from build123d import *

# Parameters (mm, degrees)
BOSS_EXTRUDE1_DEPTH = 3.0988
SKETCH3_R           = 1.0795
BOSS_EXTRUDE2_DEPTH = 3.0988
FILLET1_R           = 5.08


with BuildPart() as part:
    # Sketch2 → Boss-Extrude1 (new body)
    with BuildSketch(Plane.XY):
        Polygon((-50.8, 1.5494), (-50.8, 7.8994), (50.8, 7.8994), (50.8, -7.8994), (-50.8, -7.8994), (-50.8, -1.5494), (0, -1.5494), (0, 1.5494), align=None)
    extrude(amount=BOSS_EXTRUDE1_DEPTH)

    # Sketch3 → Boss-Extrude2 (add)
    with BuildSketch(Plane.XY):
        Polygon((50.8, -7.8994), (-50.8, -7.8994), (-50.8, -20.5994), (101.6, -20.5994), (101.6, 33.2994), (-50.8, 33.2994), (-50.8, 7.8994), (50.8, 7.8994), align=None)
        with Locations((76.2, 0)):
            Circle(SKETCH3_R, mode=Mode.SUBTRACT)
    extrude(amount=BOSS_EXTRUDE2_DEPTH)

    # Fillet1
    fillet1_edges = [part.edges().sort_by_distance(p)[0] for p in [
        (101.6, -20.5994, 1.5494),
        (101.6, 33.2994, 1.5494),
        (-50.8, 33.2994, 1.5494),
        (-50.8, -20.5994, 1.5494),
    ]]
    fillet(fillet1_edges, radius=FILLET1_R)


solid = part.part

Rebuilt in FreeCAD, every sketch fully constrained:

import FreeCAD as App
import Part
import Sketcher
Q = App.Units.Quantity


def edges_at(feature, points):
    """Names of the edges that pass closest to the given points."""
    edges = feature.Shape.Edges
    near = lambda p: min(range(len(edges)), key=lambda i: edges[i].distToShape(Part.Vertex(*p))[0])
    return sorted({f"Edge{near(p) + 1}" for p in points})


def add_polygon(sketch, points):
    """Adds a closed chain of lines whose ends are joined by coincident constraints."""
    first, n = sketch.GeometryCount, len(points)
    for a, b in zip(points, points[1:] + points[:1]):
        sketch.addGeometry(Part.LineSegment(App.Vector(*a, 0), App.Vector(*b, 0)), False)
    for i in range(n):
        sketch.addConstraint(Sketcher.Constraint("Coincident", first + i, 2, first + (i + 1) % n, 1))

doc = App.newDocument("Part")
params = doc.addObject("Spreadsheet::Sheet", "Params")
for row, (alias, value) in enumerate([
    ("sketch1_width", "2 in"),
    ("sketch1_height", "0.25 in"),
    ("sketch1_height2", "0.122 in"),
    ("pad1_length", "0.122 in"),
    ("sketch2_width", "4 in"),
    ("sketch2_width2", "6 in"),
    ("sketch2_height", "1 in"),
    ("sketch2_diameter", "0.085 in"),
    ("sketch2_height2", "0.5 in"),
    ("pad2_length", "0.122 in"),
    ("fillet_radius", "0.2 in"),
], start=1):
    params.set(f"A{row}", alias)
    params.set(f"B{row}", "=" + value)
    params.setAlias(f"B{row}", alias)

body = doc.addObject("PartDesign::Body", "Body")

sketch1 = body.newObject("Sketcher::SketchObject", "Sketch")
sketch1.AttachmentSupport = (doc.getObject("XY_Plane"), [""])
sketch1.MapMode = "FlatFace"
add_polygon(sketch1, [(-50.8, 7.8994), (-50.8, 1.5494), (0, 1.5494), (0, -1.5494), (-50.8, -1.5494), (-50.8, -7.8994), (50.8, -7.8994), (50.8, 7.8994)])
sketch1.addConstraint([
    Sketcher.Constraint("Vertical", 0),
    Sketcher.Constraint("Horizontal", 1),
    Sketcher.Constraint("Vertical", 2),
    Sketcher.Constraint("Horizontal", 3),
    Sketcher.Constraint("Vertical", 4),
    Sketcher.Constraint("Horizontal", 5),
    Sketcher.Constraint("Vertical", 6),
    Sketcher.Constraint("Horizontal", 7),
    Sketcher.Constraint("Symmetric", 1, 2, 2, 2, -1, 1),
    Sketcher.Constraint("Symmetric", 4, 2, 6, 2, -1, 1),
    Sketcher.Constraint("Vertical", 0, 2, 3, 2),
    Sketcher.Constraint("DistanceX", 1, 1, 1, 2, Q("2 in")),
    Sketcher.Constraint("DistanceY", 0, 2, 0, 1, Q("0.25 in")),
    Sketcher.Constraint("DistanceY", 2, 2, 2, 1, Q("0.122 in")),
])
sketch1.setExpression("Constraints[19]", "Params.sketch1_width")
sketch1.setExpression("Constraints[20]", "Params.sketch1_height")
sketch1.setExpression("Constraints[21]", "Params.sketch1_height2")
pad1 = body.newObject("PartDesign::Pad", "Pad")
pad1.Profile = sketch1
pad1.setExpression("Length", "Params.pad1_length")

sketch2 = body.newObject("Sketcher::SketchObject", "Sketch001")
sketch2.AttachmentSupport = (doc.getObject("XY_Plane"), [""])
sketch2.MapMode = "FlatFace"
add_polygon(sketch2, [(50.8, -7.8994), (-50.8, -7.8994), (-50.8, -20.5994), (101.6, -20.5994), (101.6, 33.2994), (-50.8, 33.2994), (-50.8, 7.8994), (50.8, 7.8994)])
sketch2.addGeometry(Part.Circle(App.Vector(76.2, 0, 0), App.Vector(0, 0, 1), 1.0795), False)
sketch2.addConstraint([
    Sketcher.Constraint("Horizontal", 0),
    Sketcher.Constraint("Vertical", 1),
    Sketcher.Constraint("Horizontal", 2),
    Sketcher.Constraint("Vertical", 3),
    Sketcher.Constraint("Horizontal", 4),
    Sketcher.Constraint("Vertical", 5),
    Sketcher.Constraint("Horizontal", 6),
    Sketcher.Constraint("Vertical", 7),
    Sketcher.Constraint("Symmetric", 0, 2, 6, 2, -1, 1),
    Sketcher.Constraint("PointOnObject", 8, 3, -1),
    Sketcher.Constraint("Vertical", 1, 2, 4, 2),
    Sketcher.Constraint("DistanceX", 0, 2, 0, 1, Q("4 in")),
    Sketcher.Constraint("DistanceX", 2, 1, 2, 2, Q("6 in")),
    Sketcher.Constraint("DistanceY", 5, 2, 5, 1, Q("1 in")),
    Sketcher.Constraint("Diameter", 8, Q("0.085 in")),
    Sketcher.Constraint("DistanceY", 1, 2, 1, 1, Q("0.5 in")),
    Sketcher.Constraint("DistanceX", -1, 1, 8, 3, Q("3 in")),
    Sketcher.Constraint("DistanceY", 3, 1, 3, 2, Q("2.122 in")),
])
sketch2.setExpression("Constraints[19]", "Params.sketch2_width")
sketch2.setExpression("Constraints[20]", "Params.sketch2_width2")
sketch2.setExpression("Constraints[21]", "Params.sketch2_height")
sketch2.setExpression("Constraints[22]", "Params.sketch2_diameter")
sketch2.setExpression("Constraints[23]", "Params.sketch2_height2")
pad2 = body.newObject("PartDesign::Pad", "Pad001")
pad2.Profile = sketch2
pad2.setExpression("Length", "Params.pad2_length")
doc.recompute()

fillet = body.newObject("PartDesign::Fillet", "Fillet")
fillet.Base = (pad2, edges_at(pad2, [
    (101.6, -20.599, 1.549),
    (101.6, 33.299, 1.549),
    (-50.8, 33.299, 1.549),
    (-50.8, -20.599, 1.549),
]))
fillet.setExpression("Radius", "Params.fillet_radius")

doc.recompute()
